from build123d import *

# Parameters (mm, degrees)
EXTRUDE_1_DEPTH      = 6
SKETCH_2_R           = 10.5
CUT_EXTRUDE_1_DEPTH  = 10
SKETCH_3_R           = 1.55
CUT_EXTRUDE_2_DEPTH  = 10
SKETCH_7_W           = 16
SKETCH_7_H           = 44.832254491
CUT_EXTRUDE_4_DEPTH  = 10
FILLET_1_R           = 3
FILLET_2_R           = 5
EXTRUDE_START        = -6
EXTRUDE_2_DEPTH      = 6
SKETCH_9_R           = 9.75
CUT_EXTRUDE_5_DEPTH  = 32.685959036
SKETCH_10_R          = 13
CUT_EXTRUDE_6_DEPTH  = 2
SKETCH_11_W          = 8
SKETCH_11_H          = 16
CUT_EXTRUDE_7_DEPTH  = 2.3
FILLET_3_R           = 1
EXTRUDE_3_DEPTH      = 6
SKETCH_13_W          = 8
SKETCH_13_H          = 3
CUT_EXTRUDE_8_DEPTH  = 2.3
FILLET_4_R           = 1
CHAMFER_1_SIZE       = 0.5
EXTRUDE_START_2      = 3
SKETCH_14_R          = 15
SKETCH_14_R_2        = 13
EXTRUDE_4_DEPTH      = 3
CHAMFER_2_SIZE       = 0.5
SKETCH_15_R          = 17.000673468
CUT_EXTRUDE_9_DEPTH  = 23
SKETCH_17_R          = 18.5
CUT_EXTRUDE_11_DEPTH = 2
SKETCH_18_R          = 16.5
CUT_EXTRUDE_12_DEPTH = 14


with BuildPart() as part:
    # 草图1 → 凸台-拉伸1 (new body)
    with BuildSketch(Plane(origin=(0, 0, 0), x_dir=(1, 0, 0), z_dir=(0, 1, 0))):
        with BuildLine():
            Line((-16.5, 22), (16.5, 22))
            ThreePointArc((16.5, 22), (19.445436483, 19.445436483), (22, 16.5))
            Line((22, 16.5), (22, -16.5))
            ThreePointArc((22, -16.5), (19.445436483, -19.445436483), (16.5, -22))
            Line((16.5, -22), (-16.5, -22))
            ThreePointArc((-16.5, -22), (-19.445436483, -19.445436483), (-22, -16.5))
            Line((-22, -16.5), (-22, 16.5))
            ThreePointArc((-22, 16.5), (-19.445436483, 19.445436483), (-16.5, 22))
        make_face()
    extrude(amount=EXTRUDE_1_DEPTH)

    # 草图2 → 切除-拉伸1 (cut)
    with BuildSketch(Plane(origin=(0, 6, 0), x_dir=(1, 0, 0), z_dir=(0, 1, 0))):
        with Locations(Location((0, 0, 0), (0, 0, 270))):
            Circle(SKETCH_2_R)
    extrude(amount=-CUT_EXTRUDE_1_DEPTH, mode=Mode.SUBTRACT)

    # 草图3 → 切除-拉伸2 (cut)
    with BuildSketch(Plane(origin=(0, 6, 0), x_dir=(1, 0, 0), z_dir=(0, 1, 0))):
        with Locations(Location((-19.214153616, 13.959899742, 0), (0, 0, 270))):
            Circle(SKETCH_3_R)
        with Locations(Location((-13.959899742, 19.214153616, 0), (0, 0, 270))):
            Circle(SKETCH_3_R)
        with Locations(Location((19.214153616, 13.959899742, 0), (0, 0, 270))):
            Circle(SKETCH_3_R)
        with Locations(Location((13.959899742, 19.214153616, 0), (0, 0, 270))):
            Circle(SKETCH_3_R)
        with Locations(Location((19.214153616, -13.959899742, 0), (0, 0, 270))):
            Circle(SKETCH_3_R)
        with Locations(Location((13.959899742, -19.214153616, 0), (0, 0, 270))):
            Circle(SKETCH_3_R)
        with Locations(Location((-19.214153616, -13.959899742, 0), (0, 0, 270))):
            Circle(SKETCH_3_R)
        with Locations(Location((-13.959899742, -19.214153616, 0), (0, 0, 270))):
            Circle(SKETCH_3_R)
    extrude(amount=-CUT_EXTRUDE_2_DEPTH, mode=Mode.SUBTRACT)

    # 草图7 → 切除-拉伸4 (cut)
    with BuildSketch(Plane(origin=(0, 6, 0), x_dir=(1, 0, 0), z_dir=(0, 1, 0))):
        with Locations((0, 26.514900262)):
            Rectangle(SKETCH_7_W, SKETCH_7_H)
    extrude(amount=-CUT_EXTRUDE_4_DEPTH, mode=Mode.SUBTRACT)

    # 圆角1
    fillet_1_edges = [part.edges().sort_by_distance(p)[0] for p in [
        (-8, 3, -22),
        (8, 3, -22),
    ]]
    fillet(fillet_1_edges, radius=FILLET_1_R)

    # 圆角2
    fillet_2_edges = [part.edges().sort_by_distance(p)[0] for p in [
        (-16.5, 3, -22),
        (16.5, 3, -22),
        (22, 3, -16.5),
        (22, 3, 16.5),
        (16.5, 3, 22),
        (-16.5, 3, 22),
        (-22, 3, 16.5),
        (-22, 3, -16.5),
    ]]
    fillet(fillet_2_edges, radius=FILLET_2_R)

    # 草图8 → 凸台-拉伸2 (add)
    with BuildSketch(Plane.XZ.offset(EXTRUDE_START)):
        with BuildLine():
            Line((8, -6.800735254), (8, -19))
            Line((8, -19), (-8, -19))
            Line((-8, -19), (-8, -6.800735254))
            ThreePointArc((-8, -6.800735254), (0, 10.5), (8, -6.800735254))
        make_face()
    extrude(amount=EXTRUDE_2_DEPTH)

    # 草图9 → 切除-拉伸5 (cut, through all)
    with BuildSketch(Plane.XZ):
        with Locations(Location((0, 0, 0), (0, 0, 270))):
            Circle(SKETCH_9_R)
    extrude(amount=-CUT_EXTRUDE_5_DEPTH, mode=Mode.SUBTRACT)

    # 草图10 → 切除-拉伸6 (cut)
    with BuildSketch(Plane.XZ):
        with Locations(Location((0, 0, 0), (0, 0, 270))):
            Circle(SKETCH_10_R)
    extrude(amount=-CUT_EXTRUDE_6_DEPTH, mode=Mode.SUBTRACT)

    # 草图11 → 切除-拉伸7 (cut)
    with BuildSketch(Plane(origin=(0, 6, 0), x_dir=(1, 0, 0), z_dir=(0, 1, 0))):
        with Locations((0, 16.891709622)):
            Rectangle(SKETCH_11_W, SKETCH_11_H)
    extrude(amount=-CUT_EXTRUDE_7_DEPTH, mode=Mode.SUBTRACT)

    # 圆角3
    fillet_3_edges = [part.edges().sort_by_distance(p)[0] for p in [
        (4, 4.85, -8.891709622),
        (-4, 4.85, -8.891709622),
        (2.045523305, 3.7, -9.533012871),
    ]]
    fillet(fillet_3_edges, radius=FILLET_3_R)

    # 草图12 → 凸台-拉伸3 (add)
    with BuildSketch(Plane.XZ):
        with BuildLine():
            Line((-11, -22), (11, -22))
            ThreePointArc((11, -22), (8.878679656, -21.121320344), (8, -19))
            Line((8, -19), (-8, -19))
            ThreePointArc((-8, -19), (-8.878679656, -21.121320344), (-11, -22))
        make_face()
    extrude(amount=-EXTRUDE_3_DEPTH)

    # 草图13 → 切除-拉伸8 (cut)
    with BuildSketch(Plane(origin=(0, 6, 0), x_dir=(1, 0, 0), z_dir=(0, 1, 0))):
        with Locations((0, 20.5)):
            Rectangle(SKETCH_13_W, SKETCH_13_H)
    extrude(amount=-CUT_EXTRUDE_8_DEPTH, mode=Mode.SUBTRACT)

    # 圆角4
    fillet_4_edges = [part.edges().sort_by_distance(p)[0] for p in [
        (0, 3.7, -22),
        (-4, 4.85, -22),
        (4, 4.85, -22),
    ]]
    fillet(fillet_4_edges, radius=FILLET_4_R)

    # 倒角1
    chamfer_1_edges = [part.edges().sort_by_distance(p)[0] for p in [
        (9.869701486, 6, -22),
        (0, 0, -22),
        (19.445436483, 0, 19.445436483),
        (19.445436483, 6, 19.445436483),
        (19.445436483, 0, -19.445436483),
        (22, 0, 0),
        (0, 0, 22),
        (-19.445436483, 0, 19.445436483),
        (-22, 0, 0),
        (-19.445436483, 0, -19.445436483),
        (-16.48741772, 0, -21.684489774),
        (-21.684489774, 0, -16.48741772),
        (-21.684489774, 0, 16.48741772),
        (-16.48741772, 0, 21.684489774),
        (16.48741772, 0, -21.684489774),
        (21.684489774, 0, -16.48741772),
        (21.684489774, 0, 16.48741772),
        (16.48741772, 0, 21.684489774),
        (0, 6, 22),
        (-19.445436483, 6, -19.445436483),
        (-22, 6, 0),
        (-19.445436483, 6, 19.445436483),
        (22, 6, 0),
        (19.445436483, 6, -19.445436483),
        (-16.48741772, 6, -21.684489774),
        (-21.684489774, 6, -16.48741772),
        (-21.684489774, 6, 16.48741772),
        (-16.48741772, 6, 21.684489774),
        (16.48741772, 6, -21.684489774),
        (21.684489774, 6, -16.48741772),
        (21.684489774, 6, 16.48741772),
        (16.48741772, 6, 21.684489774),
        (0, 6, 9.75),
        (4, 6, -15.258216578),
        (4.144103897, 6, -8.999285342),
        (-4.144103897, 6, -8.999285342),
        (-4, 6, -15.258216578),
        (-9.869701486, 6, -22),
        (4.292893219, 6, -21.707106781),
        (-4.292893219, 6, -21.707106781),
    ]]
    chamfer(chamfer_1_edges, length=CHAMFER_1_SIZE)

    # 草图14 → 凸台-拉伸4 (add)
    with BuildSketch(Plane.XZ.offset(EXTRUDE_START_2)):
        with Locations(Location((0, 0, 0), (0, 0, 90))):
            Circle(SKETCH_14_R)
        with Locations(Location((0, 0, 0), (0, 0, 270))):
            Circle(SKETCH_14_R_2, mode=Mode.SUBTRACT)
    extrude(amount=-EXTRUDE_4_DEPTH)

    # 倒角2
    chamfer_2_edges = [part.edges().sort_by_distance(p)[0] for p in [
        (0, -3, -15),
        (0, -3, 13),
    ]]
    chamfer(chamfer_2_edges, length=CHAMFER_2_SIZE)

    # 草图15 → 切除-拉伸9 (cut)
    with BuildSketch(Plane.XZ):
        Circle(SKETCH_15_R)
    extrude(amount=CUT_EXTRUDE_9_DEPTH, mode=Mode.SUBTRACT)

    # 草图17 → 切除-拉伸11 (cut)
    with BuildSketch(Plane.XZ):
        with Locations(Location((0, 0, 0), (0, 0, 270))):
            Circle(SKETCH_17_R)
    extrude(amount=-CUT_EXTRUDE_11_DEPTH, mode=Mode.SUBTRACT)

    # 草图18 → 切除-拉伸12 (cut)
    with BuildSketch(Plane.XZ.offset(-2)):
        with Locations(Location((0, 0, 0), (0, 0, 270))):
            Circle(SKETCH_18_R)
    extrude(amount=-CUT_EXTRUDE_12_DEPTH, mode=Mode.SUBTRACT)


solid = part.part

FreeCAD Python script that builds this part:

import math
import FreeCAD as App
import Part
import Sketcher
from FreeCAD import Vector


def edges_at(feature, points):
    """Names of the edges that pass closest to the given points."""
    edges = feature.Shape.Edges
    near = lambda p: min(range(len(edges)), key=lambda i: edges[i].distToShape(Part.Vertex(*p))[0])
    return sorted({f"Edge{near(p) + 1}" for p in points})


def add_polygon(sketch, points):
    """Adds a closed chain of lines whose ends are joined by coincident constraints."""
    first, n = sketch.GeometryCount, len(points)
    for a, b in zip(points, points[1:] + points[:1]):
        sketch.addGeometry(Part.LineSegment(App.Vector(*a, 0), App.Vector(*b, 0)), False)
    for i in range(n):
        sketch.addConstraint(Sketcher.Constraint("Coincident", first + i, 2, first + (i + 1) % n, 1))

doc = App.newDocument("Part")
body = doc.addObject("PartDesign::Body", "Body")

# Sketch on XZ plane
sketch1 = doc.addObject("Sketcher::SketchObject", "Sketch")
body.addObject(sketch1)
sketch1.AttachmentSupport = (doc.XZ_Plane, [""])
sketch1.MapMode = "FlatFace"
sketch1.addGeometry(Part.LineSegment(Vector(16, -22, 0), Vector(-16, -22, 0)), False)
sketch1.addGeometry(Part.ArcOfCircle(Part.Circle(Vector(0, 0, 0), Vector(0, 0, 1), 27), math.radians(-143.13), math.radians(-126.87)), False)
sketch1.addGeometry(Part.LineSegment(Vector(-22, -16, 0), Vector(-22, 16, 0)), False)
sketch1.addGeometry(Part.ArcOfCircle(Part.Circle(Vector(0, 0, 0), Vector(0, 0, 1), 27), math.radians(126.87), math.radians(143.13)), False)
sketch1.addGeometry(Part.LineSegment(Vector(-16, 22, 0), Vector(16, 22, 0)), False)
sketch1.addGeometry(Part.ArcOfCircle(Part.Circle(Vector(0, 0, 0), Vector(0, 0, 1), 27), math.radians(36.87), math.radians(53.13)), False)
sketch1.addGeometry(Part.LineSegment(Vector(22, 16, 0), Vector(22, -16, 0)), False)
sketch1.addGeometry(Part.ArcOfCircle(Part.Circle(Vector(0, 0, 0), Vector(0, 0, 1), 27), math.radians(-53.13), math.radians(-36.87)), False)
sketch1.addConstraint(Sketcher.Constraint("Coincident", 0, 2, 1, 2))
sketch1.addConstraint(Sketcher.Constraint("Coincident", 1, 1, 2, 1))
sketch1.addConstraint(Sketcher.Constraint("Coincident", 2, 2, 3, 2))
sketch1.addConstraint(Sketcher.Constraint("Coincident", 3, 1, 4, 1))
sketch1.addConstraint(Sketcher.Constraint("Coincident", 4, 2, 5, 2))
sketch1.addConstraint(Sketcher.Constraint("Coincident", 5, 1, 6, 1))
sketch1.addConstraint(Sketcher.Constraint("Coincident", 6, 2, 7, 2))
sketch1.addConstraint(Sketcher.Constraint("Coincident", 7, 1, 0, 1))
sketch1.addConstraint(Sketcher.Constraint("Horizontal", 0))
sketch1.addConstraint(Sketcher.Constraint("Vertical", 2))
sketch1.addConstraint(Sketcher.Constraint("Horizontal", 4))
sketch1.addConstraint(Sketcher.Constraint("Vertical", 6))
sketch1.addConstraint(Sketcher.Constraint("Coincident", 1, 3, -1, 1))
sketch1.addConstraint(Sketcher.Constraint("Coincident", 3, 3, -1, 1))
sketch1.addConstraint(Sketcher.Constraint("Coincident", 5, 3, -1, 1))
sketch1.addConstraint(Sketcher.Constraint("Coincident", 7, 3, -1, 1))
sketch1.addConstraint(Sketcher.Constraint("Equal", 1, 3))
sketch1.addConstraint(Sketcher.Constraint("Equal", 3, 5))
sketch1.addConstraint(Sketcher.Constraint("Equal", 5, 7))
sketch1.addConstraint(Sketcher.Constraint("Horizontal", 2, 2, 5, 1))
sketch1.addConstraint(Sketcher.Constraint("Vertical", 0, 2, 3, 1))
sketch1.addConstraint(Sketcher.Constraint("Equal", 4, 2))
sketch1.addConstraint(Sketcher.Constraint("Radius", 1, 27.5))
sketch1.addConstraint(Sketcher.Constraint("DistanceX", 0, 2, 0, 1, 33.0))
pad1 = doc.addObject("PartDesign::Pad", "Pad")
body.addObject(pad1)
pad1.Profile = sketch1
pad1.Length = 6
pad1.Reversed = True

# Sketch on XZ plane
sketch2 = doc.addObject("Sketcher::SketchObject", "Sketch001")
body.addObject(sketch2)
sketch2.AttachmentSupport = (doc.XZ_Plane, [""])
sketch2.MapMode = "FlatFace"
sketch2.AttachmentOffset = App.Placement(Vector(0, 0, -6), App.Rotation())
sketch2.addGeometry(Part.Circle(Vector(0, 0, 0), Vector(0, 0, 1), 10), False)
sketch2.addConstraint(Sketcher.Constraint("Coincident", 0, 3, -1, 1))
sketch2.addConstraint(Sketcher.Constraint("Diameter", 0, 21.0))
pocket1 = doc.addObject("PartDesign::Pocket", "Pocket")
body.addObject(pocket1)
pocket1.Profile = sketch2
pocket1.Length = 10
pocket1.Reversed = True

# Sketch on XZ plane
sketch3 = doc.addObject("Sketcher::SketchObject", "Sketch002")
body.addObject(sketch3)
sketch3.AttachmentSupport = (doc.XZ_Plane, [""])
sketch3.MapMode = "FlatFace"
sketch3.AttachmentOffset = App.Placement(Vector(0, 0, -6), App.Rotation())
sketch3.addGeometry(Part.Circle(Vector(-19.2, -14, 0), Vector(0, 0, 1), 1.6), False)
sketch3.addGeometry(Part.Circle(Vector(-14, -19.2, 0), Vector(0, 0, 1), 1.6), False)
sketch3.addGeometry(Part.Circle(Vector(19.2, -14, 0), Vector(0, 0, 1), 1.6), False)
sketch3.addGeometry(Part.Circle(Vector(14, -19.2, 0), Vector(0, 0, 1), 1.6), False)
sketch3.addGeometry(Part.Circle(Vector(19.2, 14, 0), Vector(0, 0, 1), 1.6), False)
sketch3.addGeometry(Part.Circle(Vector(14, 19.2, 0), Vector(0, 0, 1), 1.6), False)
sketch3.addGeometry(Part.Circle(Vector(-19.2, 14, 0), Vector(0, 0, 1), 1.6), False)
sketch3.addGeometry(Part.Circle(Vector(-14, 19.2, 0), Vector(0, 0, 1), 1.6), False)
sketch3.addConstraint(Sketcher.Constraint("Equal", 0, 1))
sketch3.addConstraint(Sketcher.Constraint("Equal", 1, 2))
sketch3.addConstraint(Sketcher.Constraint("Equal", 2, 3))
sketch3.addConstraint(Sketcher.Constraint("Equal", 3, 4))
sketch3.addConstraint(Sketcher.Constraint("Equal", 4, 5))
sketch3.addConstraint(Sketcher.Constraint("Equal", 5, 6))
sketch3.addConstraint(Sketcher.Constraint("Equal", 6, 7))
sketch3.addConstraint(Sketcher.Constraint("Symmetric", 0, 3, 4, 3, -1, 1))
sketch3.addConstraint(Sketcher.Constraint("Symmetric", 1, 3, 5, 3, -1, 1))
sketch3.addConstraint(Sketcher.Constraint("Symmetric", 2, 3, 6, 3, -1, 1))
sketch3.addConstraint(Sketcher.Constraint("Symmetric", 3, 3, 7, 3, -1, 1))
sketch3.addConstraint(Sketcher.Constraint("Symmetric", 0, 3, 2, 3, -2))
sketch3.addConstraint(Sketcher.Constraint("Symmetric", 1, 3, 3, 3, -2))
sketch3.addConstraint(Sketcher.Constraint("Diameter", 0, 3.1))
sketch3.addConstraint(Sketcher.Constraint("DistanceY", 0, 3, -1, 1, 13.9599))
sketch3.addConstraint(Sketcher.Constraint("DistanceX", 1, 3, -1, 1, 13.9599))
sketch3.addConstraint(Sketcher.Constraint("DistanceX", 0, 3, -1, 1, 19.214154))
sketch3.addConstraint(Sketcher.Constraint("DistanceY", 1, 3, -1, 1, 19.214154))
pocket2 = doc.addObject("PartDesign::Pocket", "Pocket001")
body.addObject(pocket2)
pocket2.Profile = sketch3
pocket2.Length = 10
pocket2.Reversed = True

# Sketch on XZ plane
sketch4 = doc.addObject("Sketcher::SketchObject", "Sketch003")
body.addObject(sketch4)
sketch4.AttachmentSupport = (doc.XZ_Plane, [""])
sketch4.MapMode = "FlatFace"
sketch4.AttachmentOffset = App.Placement(Vector(0, 0, -6), App.Rotation())
add_polygon(sketch4, [(-8, -49), (-8, -4), (8, -4), (8, -49)])  # lines 0-3
sketch4.addConstraint(Sketcher.Constraint("Vertical", 0))
sketch4.addConstraint(Sketcher.Constraint("Horizontal", 1))
sketch4.addConstraint(Sketcher.Constraint("Vertical", 2))
sketch4.addConstraint(Sketcher.Constraint("Horizontal", 3))
sketch4.addConstraint(Sketcher.Constraint("DistanceX", 1, 1, 1, 2, 16.0))
sketch4.addConstraint(Sketcher.Constraint("DistanceX", 0, 2, -1, 1, 8.0))
sketch4.addConstraint(Sketcher.Constraint("DistanceY", 0, 1, 0, 2, 44.832254))
sketch4.addConstraint(Sketcher.Constraint("DistanceY", 0, 2, -1, 1, 4.098773))
pocket3 = doc.addObject("PartDesign::Pocket", "Pocket002")
body.addObject(pocket3)
pocket3.Profile = sketch4
pocket3.Length = 10
pocket3.Reversed = True
doc.recompute()

fillet = doc.addObject("PartDesign::Fillet", "Fillet")
body.addObject(fillet)
fillet.Base = (pocket3, edges_at(pocket3, [(-8, 3, -22), (8, 3, -22)]))
fillet.Radius = 3
doc.recompute()

fillet2 = doc.addObject("PartDesign::Fillet", "Fillet001")
body.addObject(fillet2)
fillet2.Base = (fillet, edges_at(fillet, [
    (-16.5, 3, -22),
    (16.5, 3, -22),
    (22, 3, -16.5),
    (22, 3, 16.5),
    (16.5, 3, 22),
    (-16.5, 3, 22),
    (-22, 3, 16.5),
    (-22, 3, -16.5),
]))
fillet2.Radius = 5

# Sketch on XZ plane
sketch5 = doc.addObject("Sketcher::SketchObject", "Sketch004")
body.addObject(sketch5)
sketch5.AttachmentSupport = (doc.XZ_Plane, [""])
sketch5.MapMode = "FlatFace"
sketch5.AttachmentOffset = App.Placement(Vector(0, 0, -6), App.Rotation())
sketch5.addGeometry(Part.LineSegment(Vector(8, -19, 0), Vector(8, -7, 0)), False)
sketch5.addGeometry(Part.ArcOfCircle(Part.Circle(Vector(0, 0, 0), Vector(0, 0, 1), 10), math.radians(-40), math.radians(220)), False)
sketch5.addGeometry(Part.LineSegment(Vector(-8, -7, 0), Vector(-8, -19, 0)), False)
sketch5.addGeometry(Part.LineSegment(Vector(-8, -19, 0), Vector(8, -19, 0)), False)
sketch5.addConstraint(Sketcher.Constraint("Coincident", 0, 2, 1, 1))
sketch5.addConstraint(Sketcher.Constraint("Coincident", 1, 2, 2, 1))
sketch5.addConstraint(Sketcher.Constraint("Coincident", 2, 2, 3, 1))
sketch5.addConstraint(Sketcher.Constraint("Coincident", 3, 2, 0, 1))
sketch5.addConstraint(Sketcher.Constraint("Vertical", 0))
sketch5.addConstraint(Sketcher.Constraint("Vertical", 2))
sketch5.addConstraint(Sketcher.Constraint("Horizontal", 3))
sketch5.addConstraint(Sketcher.Constraint("Coincident", 1, 3, -1, 1))
sketch5.addConstraint(Sketcher.Constraint("Horizontal", 0, 2, 1, 2))
sketch5.addConstraint(Sketcher.Constraint("Radius", 1, 10.5))
sketch5.addConstraint(Sketcher.Constraint("DistanceX", 3, 1, 3, 2, 16.0))
sketch5.addConstraint(Sketcher.Constraint("DistanceY", 2, 2, -1, 1, 19.0))
pad2 = doc.addObject("PartDesign::Pad", "Pad001")
body.addObject(pad2)
pad2.Profile = sketch5
pad2.Length = 6

# Sketch on XZ plane
sketch6 = doc.addObject("Sketcher::SketchObject", "Sketch005")
body.addObject(sketch6)
sketch6.AttachmentSupport = (doc.XZ_Plane, [""])
sketch6.MapMode = "FlatFace"
sketch6.addGeometry(Part.Circle(Vector(0, 0, 0), Vector(0, 0, 1), 10), False)
sketch6.addConstraint(Sketcher.Constraint("Coincident", 0, 3, -1, 1))
sketch6.addConstraint(Sketcher.Constraint("Diameter", 0, 19.5))
pocket4 = doc.addObject("PartDesign::Pocket", "Pocket003")
body.addObject(pocket4)
pocket4.Profile = sketch6
pocket4.Type = "ThroughAll"

# Sketch on XZ plane
sketch7 = doc.addObject("Sketcher::SketchObject", "Sketch006")
body.addObject(sketch7)
sketch7.AttachmentSupport = (doc.XZ_Plane, [""])
sketch7.MapMode = "FlatFace"
sketch7.addGeometry(Part.Circle(Vector(0, 0, 0), Vector(0, 0, 1), 13), False)
sketch7.addConstraint(Sketcher.Constraint("Coincident", 0, 3, -1, 1))
sketch7.addConstraint(Sketcher.Constraint("Diameter", 0, 26.0))
pocket5 = doc.addObject("PartDesign::Pocket", "Pocket004")
body.addObject(pocket5)
pocket5.Profile = sketch7
pocket5.Length = 2

# Sketch on XZ plane
sketch8 = doc.addObject("Sketcher::SketchObject", "Sketch007")
body.addObject(sketch8)
sketch8.AttachmentSupport = (doc.XZ_Plane, [""])
sketch8.MapMode = "FlatFace"
sketch8.AttachmentOffset = App.Placement(Vector(0, 0, -6), App.Rotation())
add_polygon(sketch8, [(-4, -25), (-4, -9), (4, -9), (4, -25)])  # lines 0-3
sketch8.addConstraint(Sketcher.Constraint("Vertical", 0))
sketch8.addConstraint(Sketcher.Constraint("Horizontal", 1))
sketch8.addConstraint(Sketcher.Constraint("Vertical", 2))
sketch8.addConstraint(Sketcher.Constraint("Horizontal", 3))
sketch8.addConstraint(Sketcher.Constraint("DistanceX", 1, 1, 1, 2, 8.0))
sketch8.addConstraint(Sketcher.Constraint("DistanceY", 0, 1, 0, 2, 16.0))
sketch8.addConstraint(Sketcher.Constraint("DistanceX", 0, 2, -1, 1, 4.0))
sketch8.addConstraint(Sketcher.Constraint("DistanceY", 0, 2, -1, 1, 8.89171))
pocket6 = doc.addObject("PartDesign::Pocket", "Pocket005")
body.addObject(pocket6)
pocket6.Profile = sketch8
pocket6.Length = 2.3
pocket6.Reversed = True
doc.recompute()

fillet3 = doc.addObject("PartDesign::Fillet", "Fillet002")
body.addObject(fillet3)
fillet3.Base = (pocket6, edges_at(pocket6, [(4, 4.85, -8.892), (-4, 4.85, -8.892), (2.046, 3.7, -9.533)]))
fillet3.Radius = 1

# Sketch on XZ plane
sketch9 = doc.addObject("Sketcher::SketchObject", "Sketch008")
body.addObject(sketch9)
sketch9.AttachmentSupport = (doc.XZ_Plane, [""])
sketch9.MapMode = "FlatFace"
sketch9.addGeometry(Part.LineSegment(Vector(-11, -22, 0), Vector(11, -22, 0)), False)
sketch9.addGeometry(Part.ArcOfCircle(Part.Circle(Vector(11, -19, 0), Vector(0, 0, 1), 3), math.radians(180), math.radians(270)), False)
sketch9.addGeometry(Part.LineSegment(Vector(8, -19, 0), Vector(-8, -19, 0)), False)
sketch9.addGeometry(Part.ArcOfCircle(Part.Circle(Vector(-11, -19, 0), Vector(0, 0, 1), 3), math.radians(-90), math.radians(0)), False)
sketch9.addConstraint(Sketcher.Constraint("Tangent", 0, 2, 1, 2))
sketch9.addConstraint(Sketcher.Constraint("Coincident", 1, 1, 2, 1))
sketch9.addConstraint(Sketcher.Constraint("Coincident", 2, 2, 3, 2))
sketch9.addConstraint(Sketcher.Constraint("Tangent", 3, 1, 0, 1))
sketch9.addConstraint(Sketcher.Constraint("Horizontal", 0))
sketch9.addConstraint(Sketcher.Constraint("Horizontal", 2))
sketch9.addConstraint(Sketcher.Constraint("Equal", 1, 3))
sketch9.addConstraint(Sketcher.Constraint("Horizontal", 3, 3, 1, 1))
sketch9.addConstraint(Sketcher.Constraint("Radius", 1, 3.0))
sketch9.addConstraint(Sketcher.Constraint("DistanceX", 0, 1, 0, 2, 22.0))
sketch9.addConstraint(Sketcher.Constraint("DistanceX", -1, 1, 1, 3, 11.0))
sketch9.addConstraint(Sketcher.Constraint("DistanceY", 1, 3, -1, 1, 19.0))
pad3 = doc.addObject("PartDesign::Pad", "Pad002")
body.addObject(pad3)
pad3.Profile = sketch9
pad3.Length = 6
pad3.Reversed = True

# Sketch on XZ plane
sketch10 = doc.addObject("Sketcher::SketchObject", "Sketch009")
body.addObject(sketch10)
sketch10.AttachmentSupport = (doc.XZ_Plane, [""])
sketch10.MapMode = "FlatFace"
sketch10.AttachmentOffset = App.Placement(Vector(0, 0, -6), App.Rotation())
add_polygon(sketch10, [(-4, -22), (-4, -19), (4, -19), (4, -22)])  # lines 0-3
sketch10.addConstraint(Sketcher.Constraint("Vertical", 0))
sketch10.addConstraint(Sketcher.Constraint("Horizontal", 1))
sketch10.addConstraint(Sketcher.Constraint("Vertical", 2))
sketch10.addConstraint(Sketcher.Constraint("Horizontal", 3))
sketch10.addConstraint(Sketcher.Constraint("DistanceX", 1, 1, 1, 2, 8.0))
sketch10.addConstraint(Sketcher.Constraint("DistanceY", 0, 1, 0, 2, 3.0))
sketch10.addConstraint(Sketcher.Constraint("DistanceX", 0, 2, -1, 1, 4.0))
sketch10.addConstraint(Sketcher.Constraint("DistanceY", 0, 2, -1, 1, 19.0))
pocket7 = doc.addObject("PartDesign::Pocket", "Pocket006")
body.addObject(pocket7)
pocket7.Profile = sketch10
pocket7.Length = 2.3
pocket7.Reversed = True
doc.recompute()

fillet4 = doc.addObject("PartDesign::Fillet", "Fillet003")
body.addObject(fillet4)
fillet4.Base = (pocket7, edges_at(pocket7, [(0, 3.7, -22), (-4, 4.85, -22), (4, 4.85, -22)]))
fillet4.Radius = 1
doc.recompute()

chamfer = doc.addObject("PartDesign::Chamfer", "Chamfer")
body.addObject(chamfer)
chamfer.Base = (fillet4, edges_at(fillet4, [
    (9.87, 6, -22),
    (0, 0, -22),
    (19.445, 0, 19.445),
    (19.445, 6, 19.445),
    (19.445, 0, -19.445),
    (22, 0, 0),
    (0, 0, 22),
    (-19.445, 0, 19.445),
    (-22, 0, 0),
    (-19.445, 0, -19.445),
    (-16.487, 0, -21.684),
    (-21.684, 0, -16.487),
    (-21.684, 0, 16.487),
    (-16.487, 0, 21.684),
    (16.487, 0, -21.684),
    (21.684, 0, -16.487),
    (21.684, 0, 16.487),
    (16.487, 0, 21.684),
    (0, 6, 22),
    (-19.445, 6, -19.445),
    (-22, 6, 0),
    (-19.445, 6, 19.445),
    (22, 6, 0),
    (19.445, 6, -19.445),
    (-16.487, 6, -21.684),
    (-21.684, 6, -16.487),
    (-21.684, 6, 16.487),
    (-16.487, 6, 21.684),
    (16.487, 6, -21.684),
    (21.684, 6, -16.487),
    (21.684, 6, 16.487),
    (16.487, 6, 21.684),
    (0, 6, 9.75),
    (4, 6, -15.258),
    (4.144, 6, -8.999),
    (-4.144, 6, -8.999),
    (-4, 6, -15.258),
    (-9.87, 6, -22),
    (4.293, 6, -21.707),
    (-4.293, 6, -21.707),
]))
chamfer.Size = 0.5

# Sketch on XZ plane
sketch11 = doc.addObject("Sketcher::SketchObject", "Sketch010")
body.addObject(sketch11)
sketch11.AttachmentSupport = (doc.XZ_Plane, [""])
sketch11.MapMode = "FlatFace"
sketch11.AttachmentOffset = App.Placement(Vector(0, 0, 3), App.Rotation())
sketch11.addGeometry(Part.Circle(Vector(0, 0, 0), Vector(0, 0, 1), 15), False)
sketch11.addGeometry(Part.Circle(Vector(0, 0, 0), Vector(0, 0, 1), 13), False)
sketch11.addConstraint(Sketcher.Constraint("Coincident", 0, 3, -1, 1))
sketch11.addConstraint(Sketcher.Constraint("Coincident", 1, 3, -1, 1))
sketch11.addConstraint(Sketcher.Constraint("Diameter", 0, 30.0))
sketch11.addConstraint(Sketcher.Constraint("Diameter", 1, 26.0))
pad4 = doc.addObject("PartDesign::Pad", "Pad003")
body.addObject(pad4)
pad4.Profile = sketch11
pad4.Length = 3
pad4.Reversed = True
doc.recompute()

chamfer2 = doc.addObject("PartDesign::Chamfer", "Chamfer001")
body.addObject(chamfer2)
chamfer2.Base = (pad4, edges_at(pad4, [(0, -3, -15), (0, -3, 13)]))
chamfer2.Size = 0.5

# Sketch on XZ plane
sketch12 = doc.addObject("Sketcher::SketchObject", "Sketch011")
body.addObject(sketch12)
sketch12.AttachmentSupport = (doc.XZ_Plane, [""])
sketch12.MapMode = "FlatFace"
sketch12.addGeometry(Part.Circle(Vector(0, 0, 0), Vector(0, 0, 1), 17), False)
sketch12.addConstraint(Sketcher.Constraint("Coincident", 0, 3, -1, 1))
sketch12.addConstraint(Sketcher.Constraint("Diameter", 0, 34.001347))
pocket8 = doc.addObject("PartDesign::Pocket", "Pocket007")
body.addObject(pocket8)
pocket8.Profile = sketch12
pocket8.Length = 23
pocket8.Reversed = True

# Sketch on XZ plane
sketch13 = doc.addObject("Sketcher::SketchObject", "Sketch012")
body.addObject(sketch13)
sketch13.AttachmentSupport = (doc.XZ_Plane, [""])
sketch13.MapMode = "FlatFace"
sketch13.addGeometry(Part.Circle(Vector(0, 0, 0), Vector(0, 0, 1), 18), False)
sketch13.addConstraint(Sketcher.Constraint("Coincident", 0, 3, -1, 1))
sketch13.addConstraint(Sketcher.Constraint("Diameter", 0, 37.0))
pocket9 = doc.addObject("PartDesign::Pocket", "Pocket008")
body.addObject(pocket9)
pocket9.Profile = sketch13
pocket9.Length = 2

# Sketch on XZ plane
sketch14 = doc.addObject("Sketcher::SketchObject", "Sketch013")
body.addObject(sketch14)
sketch14.AttachmentSupport = (doc.XZ_Plane, [""])
sketch14.MapMode = "FlatFace"
sketch14.AttachmentOffset = App.Placement(Vector(0, 0, -2), App.Rotation())
sketch14.addGeometry(Part.Circle(Vector(0, 0, 0), Vector(0, 0, 1), 16), False)
sketch14.addConstraint(Sketcher.Constraint("Coincident", 0, 3, -1, 1))
sketch14.addConstraint(Sketcher.Constraint("Diameter", 0, 33.0))
pocket10 = doc.addObject("PartDesign::Pocket", "Pocket009")
body.addObject(pocket10)
pocket10.Profile = sketch14
pocket10.Length = 14

doc.recompute()
